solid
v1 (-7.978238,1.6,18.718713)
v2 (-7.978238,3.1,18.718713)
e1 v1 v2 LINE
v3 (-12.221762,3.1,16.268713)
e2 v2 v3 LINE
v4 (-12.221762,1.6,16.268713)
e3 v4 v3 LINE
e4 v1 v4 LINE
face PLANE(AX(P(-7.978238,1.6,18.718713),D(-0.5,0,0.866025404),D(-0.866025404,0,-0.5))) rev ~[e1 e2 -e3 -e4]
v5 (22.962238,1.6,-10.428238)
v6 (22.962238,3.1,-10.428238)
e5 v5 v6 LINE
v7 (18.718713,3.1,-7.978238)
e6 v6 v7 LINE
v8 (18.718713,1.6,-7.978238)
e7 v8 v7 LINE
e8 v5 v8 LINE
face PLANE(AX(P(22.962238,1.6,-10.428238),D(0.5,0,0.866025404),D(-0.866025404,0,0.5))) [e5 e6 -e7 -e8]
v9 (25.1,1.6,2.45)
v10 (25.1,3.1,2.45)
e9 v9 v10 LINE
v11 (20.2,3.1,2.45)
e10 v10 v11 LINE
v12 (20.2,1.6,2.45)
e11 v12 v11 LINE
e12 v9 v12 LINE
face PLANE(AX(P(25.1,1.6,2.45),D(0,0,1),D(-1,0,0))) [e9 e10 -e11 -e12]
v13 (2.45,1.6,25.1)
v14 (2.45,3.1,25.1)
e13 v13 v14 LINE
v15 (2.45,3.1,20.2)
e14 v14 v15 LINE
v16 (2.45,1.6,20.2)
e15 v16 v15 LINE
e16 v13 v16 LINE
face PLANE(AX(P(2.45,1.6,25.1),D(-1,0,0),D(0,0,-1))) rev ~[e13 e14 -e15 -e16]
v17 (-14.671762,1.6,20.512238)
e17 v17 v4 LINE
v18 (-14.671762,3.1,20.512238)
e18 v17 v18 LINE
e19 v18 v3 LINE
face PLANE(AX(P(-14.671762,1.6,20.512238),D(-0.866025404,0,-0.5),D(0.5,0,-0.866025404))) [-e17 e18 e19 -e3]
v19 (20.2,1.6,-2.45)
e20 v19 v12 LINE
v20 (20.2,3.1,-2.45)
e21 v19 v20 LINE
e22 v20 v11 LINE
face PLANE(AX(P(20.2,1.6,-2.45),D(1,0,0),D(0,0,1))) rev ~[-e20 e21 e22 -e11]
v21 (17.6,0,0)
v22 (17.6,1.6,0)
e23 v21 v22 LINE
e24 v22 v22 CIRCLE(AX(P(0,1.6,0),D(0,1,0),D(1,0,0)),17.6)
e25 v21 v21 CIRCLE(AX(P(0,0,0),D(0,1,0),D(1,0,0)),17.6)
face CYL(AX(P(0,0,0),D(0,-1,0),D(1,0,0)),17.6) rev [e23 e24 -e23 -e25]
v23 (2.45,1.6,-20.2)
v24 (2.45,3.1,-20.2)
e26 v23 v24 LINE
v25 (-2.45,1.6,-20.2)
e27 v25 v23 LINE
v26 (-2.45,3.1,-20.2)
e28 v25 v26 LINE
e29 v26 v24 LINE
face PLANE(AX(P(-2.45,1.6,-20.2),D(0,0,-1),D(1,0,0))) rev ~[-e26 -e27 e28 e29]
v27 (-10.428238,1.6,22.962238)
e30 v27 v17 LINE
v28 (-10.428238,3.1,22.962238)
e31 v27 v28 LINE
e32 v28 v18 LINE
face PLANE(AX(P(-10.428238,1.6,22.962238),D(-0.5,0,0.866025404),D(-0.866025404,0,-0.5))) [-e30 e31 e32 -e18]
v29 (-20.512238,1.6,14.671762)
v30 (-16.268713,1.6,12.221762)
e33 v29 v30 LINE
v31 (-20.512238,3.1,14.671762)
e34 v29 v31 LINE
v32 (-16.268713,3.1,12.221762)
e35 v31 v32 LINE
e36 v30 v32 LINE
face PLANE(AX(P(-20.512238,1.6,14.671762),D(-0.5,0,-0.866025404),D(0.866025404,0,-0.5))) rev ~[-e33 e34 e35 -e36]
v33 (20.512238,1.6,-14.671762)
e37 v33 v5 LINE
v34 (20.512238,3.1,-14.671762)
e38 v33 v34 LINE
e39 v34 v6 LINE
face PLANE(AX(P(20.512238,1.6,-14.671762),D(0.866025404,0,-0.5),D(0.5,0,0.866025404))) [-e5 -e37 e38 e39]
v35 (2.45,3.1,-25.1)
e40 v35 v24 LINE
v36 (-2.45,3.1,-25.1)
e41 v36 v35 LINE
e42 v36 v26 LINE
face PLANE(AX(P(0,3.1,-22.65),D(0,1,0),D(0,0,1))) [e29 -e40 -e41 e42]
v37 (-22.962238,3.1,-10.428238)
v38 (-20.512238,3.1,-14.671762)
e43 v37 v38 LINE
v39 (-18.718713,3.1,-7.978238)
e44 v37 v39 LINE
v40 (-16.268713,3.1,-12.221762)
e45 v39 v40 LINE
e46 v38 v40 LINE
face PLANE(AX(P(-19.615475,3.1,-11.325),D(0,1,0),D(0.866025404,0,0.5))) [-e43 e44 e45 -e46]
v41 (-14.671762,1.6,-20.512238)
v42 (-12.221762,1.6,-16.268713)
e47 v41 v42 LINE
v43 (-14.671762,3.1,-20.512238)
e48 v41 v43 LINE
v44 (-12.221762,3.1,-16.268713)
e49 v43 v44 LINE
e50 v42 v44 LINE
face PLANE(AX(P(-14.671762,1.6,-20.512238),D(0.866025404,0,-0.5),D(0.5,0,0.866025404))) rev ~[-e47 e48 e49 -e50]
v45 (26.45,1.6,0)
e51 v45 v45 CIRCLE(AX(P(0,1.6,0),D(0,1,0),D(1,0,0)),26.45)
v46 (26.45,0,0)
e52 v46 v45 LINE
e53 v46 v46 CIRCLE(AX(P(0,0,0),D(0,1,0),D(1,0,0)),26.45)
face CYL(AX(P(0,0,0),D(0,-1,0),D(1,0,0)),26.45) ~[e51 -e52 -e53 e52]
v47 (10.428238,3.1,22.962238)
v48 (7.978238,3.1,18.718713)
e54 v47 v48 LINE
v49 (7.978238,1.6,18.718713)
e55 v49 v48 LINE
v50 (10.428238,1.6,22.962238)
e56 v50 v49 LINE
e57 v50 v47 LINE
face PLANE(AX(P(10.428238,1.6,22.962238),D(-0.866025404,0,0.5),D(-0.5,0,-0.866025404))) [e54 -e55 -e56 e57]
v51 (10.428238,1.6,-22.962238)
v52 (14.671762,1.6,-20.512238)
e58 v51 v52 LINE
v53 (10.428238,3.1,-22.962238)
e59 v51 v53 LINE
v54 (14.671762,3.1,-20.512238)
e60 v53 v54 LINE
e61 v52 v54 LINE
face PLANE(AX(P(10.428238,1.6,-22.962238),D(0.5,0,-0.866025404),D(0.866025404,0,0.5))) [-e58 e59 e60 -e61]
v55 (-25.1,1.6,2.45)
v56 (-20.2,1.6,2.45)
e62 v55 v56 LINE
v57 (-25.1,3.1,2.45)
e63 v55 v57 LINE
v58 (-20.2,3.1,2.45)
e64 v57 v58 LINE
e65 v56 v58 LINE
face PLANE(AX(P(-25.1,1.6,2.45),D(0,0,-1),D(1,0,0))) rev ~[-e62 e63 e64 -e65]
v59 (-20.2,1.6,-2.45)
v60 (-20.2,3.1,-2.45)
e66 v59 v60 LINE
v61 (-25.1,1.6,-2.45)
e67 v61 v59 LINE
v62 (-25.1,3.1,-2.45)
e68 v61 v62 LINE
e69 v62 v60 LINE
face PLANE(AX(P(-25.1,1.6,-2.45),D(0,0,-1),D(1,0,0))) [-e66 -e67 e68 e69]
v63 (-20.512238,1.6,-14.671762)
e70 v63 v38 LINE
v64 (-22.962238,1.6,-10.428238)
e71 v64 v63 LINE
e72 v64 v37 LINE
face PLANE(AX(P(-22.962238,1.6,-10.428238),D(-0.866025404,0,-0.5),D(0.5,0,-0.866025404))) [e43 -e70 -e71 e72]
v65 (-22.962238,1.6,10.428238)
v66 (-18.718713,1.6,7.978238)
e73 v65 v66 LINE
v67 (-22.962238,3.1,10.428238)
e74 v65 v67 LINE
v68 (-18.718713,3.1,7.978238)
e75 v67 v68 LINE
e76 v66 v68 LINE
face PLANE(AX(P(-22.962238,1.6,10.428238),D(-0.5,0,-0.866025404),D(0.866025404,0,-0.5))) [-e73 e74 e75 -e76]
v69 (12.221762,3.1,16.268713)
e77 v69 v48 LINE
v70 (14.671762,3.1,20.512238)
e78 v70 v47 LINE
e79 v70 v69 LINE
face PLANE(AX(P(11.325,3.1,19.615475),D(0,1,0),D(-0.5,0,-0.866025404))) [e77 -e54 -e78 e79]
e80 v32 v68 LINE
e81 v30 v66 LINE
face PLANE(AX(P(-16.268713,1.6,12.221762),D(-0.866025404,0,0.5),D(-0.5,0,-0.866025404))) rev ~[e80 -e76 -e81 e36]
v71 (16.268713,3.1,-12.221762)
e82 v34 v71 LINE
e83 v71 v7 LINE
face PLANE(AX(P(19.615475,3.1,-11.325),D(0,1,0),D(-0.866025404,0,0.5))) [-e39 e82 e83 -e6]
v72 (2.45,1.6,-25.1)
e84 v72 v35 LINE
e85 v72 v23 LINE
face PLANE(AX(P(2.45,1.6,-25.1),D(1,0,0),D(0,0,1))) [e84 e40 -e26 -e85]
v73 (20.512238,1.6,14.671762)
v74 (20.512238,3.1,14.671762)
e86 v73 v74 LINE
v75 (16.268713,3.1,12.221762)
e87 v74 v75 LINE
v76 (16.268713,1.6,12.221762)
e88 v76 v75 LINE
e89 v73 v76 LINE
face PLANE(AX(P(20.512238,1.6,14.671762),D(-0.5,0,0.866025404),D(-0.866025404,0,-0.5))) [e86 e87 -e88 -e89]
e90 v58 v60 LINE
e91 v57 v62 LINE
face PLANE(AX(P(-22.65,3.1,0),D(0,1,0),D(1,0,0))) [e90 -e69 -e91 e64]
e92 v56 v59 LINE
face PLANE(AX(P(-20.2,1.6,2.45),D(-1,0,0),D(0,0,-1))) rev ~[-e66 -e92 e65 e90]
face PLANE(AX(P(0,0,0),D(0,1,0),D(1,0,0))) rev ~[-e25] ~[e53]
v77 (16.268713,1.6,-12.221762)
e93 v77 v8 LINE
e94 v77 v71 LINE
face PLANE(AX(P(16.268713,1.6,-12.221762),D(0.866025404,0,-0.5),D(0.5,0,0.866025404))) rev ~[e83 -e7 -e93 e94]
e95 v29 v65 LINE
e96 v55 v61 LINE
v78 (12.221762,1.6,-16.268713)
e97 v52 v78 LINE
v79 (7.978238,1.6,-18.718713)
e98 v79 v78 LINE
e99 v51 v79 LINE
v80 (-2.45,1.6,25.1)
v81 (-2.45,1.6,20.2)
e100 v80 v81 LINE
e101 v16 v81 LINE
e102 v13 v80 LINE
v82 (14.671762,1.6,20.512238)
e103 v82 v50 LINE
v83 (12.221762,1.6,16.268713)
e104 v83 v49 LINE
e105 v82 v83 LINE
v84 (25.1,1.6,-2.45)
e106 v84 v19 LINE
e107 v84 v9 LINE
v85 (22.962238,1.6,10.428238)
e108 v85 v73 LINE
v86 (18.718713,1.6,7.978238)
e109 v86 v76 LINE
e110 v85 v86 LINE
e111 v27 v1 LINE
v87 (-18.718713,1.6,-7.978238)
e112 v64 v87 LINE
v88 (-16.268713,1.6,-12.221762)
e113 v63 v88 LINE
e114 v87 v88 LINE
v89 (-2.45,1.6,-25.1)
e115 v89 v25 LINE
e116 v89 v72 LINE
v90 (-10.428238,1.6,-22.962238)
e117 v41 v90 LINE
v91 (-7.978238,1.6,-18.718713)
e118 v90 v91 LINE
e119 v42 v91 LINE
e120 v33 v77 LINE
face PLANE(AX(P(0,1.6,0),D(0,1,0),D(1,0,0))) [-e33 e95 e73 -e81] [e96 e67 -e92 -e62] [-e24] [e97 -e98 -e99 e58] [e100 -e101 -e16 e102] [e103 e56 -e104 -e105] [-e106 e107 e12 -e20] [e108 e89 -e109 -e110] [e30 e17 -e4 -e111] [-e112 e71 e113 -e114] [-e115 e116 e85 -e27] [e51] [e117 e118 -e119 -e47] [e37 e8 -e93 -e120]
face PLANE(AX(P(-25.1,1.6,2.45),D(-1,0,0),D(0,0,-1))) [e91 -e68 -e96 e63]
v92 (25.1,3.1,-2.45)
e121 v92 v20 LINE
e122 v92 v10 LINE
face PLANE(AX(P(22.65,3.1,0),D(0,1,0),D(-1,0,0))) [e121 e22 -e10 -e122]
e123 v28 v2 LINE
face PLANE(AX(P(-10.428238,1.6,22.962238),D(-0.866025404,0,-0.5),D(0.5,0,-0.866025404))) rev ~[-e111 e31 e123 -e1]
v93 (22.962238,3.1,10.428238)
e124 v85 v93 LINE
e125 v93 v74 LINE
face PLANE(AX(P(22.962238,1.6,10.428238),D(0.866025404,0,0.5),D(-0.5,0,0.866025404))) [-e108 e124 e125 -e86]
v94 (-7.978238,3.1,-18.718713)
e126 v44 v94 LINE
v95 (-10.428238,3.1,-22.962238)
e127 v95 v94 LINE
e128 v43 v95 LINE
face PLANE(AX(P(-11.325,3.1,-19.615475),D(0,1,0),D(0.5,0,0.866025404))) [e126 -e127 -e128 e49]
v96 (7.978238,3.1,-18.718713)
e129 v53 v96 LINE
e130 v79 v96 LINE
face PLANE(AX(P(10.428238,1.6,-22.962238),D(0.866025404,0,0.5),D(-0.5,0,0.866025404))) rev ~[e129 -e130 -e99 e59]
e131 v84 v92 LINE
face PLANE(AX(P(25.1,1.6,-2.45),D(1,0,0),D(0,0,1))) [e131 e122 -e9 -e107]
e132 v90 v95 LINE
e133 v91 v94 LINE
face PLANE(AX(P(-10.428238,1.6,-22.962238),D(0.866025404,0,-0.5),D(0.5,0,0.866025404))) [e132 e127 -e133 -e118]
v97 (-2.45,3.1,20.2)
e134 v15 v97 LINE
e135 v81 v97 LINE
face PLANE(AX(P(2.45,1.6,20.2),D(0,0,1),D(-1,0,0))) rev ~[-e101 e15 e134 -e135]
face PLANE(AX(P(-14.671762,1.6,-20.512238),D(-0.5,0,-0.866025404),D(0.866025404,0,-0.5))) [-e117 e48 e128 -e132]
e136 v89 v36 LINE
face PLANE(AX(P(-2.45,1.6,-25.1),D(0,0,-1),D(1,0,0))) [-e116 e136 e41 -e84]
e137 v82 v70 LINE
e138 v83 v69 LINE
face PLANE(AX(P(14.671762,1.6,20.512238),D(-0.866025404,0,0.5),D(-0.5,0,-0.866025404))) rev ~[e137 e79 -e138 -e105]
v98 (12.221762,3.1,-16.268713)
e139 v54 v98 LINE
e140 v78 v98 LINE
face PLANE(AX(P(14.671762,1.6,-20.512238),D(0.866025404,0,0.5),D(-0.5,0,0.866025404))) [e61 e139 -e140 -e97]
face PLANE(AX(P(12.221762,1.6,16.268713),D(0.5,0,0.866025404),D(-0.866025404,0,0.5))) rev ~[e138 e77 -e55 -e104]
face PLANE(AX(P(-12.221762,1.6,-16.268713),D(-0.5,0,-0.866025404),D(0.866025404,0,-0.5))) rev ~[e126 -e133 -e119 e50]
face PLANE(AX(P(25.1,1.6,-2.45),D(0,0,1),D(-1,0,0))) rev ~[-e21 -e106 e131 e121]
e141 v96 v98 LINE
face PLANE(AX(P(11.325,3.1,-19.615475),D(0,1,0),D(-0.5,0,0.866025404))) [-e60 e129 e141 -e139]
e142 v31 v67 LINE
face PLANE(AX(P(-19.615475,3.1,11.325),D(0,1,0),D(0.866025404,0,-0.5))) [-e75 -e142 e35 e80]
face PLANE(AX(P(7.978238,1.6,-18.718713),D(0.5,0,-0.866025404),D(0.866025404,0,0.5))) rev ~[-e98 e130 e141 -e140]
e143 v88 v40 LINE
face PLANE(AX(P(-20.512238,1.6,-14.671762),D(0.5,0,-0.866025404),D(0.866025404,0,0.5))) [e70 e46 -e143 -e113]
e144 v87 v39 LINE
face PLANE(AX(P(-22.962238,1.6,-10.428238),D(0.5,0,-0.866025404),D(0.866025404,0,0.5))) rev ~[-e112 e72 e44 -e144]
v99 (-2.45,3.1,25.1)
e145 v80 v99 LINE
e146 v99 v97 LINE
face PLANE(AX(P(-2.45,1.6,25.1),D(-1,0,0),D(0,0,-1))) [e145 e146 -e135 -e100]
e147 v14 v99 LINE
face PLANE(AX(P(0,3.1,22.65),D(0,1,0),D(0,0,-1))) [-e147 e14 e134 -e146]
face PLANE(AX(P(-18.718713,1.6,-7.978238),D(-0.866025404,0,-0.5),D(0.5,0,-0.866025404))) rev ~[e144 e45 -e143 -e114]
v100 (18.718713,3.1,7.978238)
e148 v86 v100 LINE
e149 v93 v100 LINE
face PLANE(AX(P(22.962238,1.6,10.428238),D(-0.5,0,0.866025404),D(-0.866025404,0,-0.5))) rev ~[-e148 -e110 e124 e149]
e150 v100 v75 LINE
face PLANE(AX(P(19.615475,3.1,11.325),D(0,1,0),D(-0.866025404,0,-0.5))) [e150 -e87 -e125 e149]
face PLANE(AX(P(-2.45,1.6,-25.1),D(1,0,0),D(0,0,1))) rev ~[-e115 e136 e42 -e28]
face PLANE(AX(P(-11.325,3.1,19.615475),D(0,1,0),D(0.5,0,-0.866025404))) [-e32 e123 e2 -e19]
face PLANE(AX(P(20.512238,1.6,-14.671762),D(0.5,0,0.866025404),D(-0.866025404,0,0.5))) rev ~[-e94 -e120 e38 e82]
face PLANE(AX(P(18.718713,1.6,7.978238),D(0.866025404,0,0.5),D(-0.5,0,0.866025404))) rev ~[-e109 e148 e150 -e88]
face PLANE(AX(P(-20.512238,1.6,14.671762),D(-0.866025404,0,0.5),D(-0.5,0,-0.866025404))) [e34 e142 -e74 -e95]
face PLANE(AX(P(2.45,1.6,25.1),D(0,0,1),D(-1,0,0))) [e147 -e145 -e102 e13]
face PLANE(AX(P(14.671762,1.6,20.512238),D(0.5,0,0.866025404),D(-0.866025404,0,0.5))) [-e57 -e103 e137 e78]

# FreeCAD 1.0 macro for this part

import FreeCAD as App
import Part
import Sketcher
from FreeCAD import Vector


def add_polygon(sketch, points):
    """Adds a closed chain of lines whose ends are joined by coincident constraints."""
    first, n = sketch.GeometryCount, len(points)
    for a, b in zip(points, points[1:] + points[:1]):
        sketch.addGeometry(Part.LineSegment(App.Vector(*a, 0), App.Vector(*b, 0)), False)
    for i in range(n):
        sketch.addConstraint(Sketcher.Constraint("Coincident", first + i, 2, first + (i + 1) % n, 1))

doc = App.newDocument("Part")
params = doc.addObject("Spreadsheet::Sheet", "Params")
for row, (alias, value) in enumerate([
    ("sketch1_diameter", "52.9 mm"),
    ("sketch1_diameter2", "35.2 mm"),
    ("pad1_length", "1.6 mm"),
    ("sketch2_width", "4.9 mm"),
    ("pad2_length", "1.5 mm"),
], start=1):
    params.set(f"A{row}", alias)
    params.set(f"B{row}", "=" + value)
    params.setAlias(f"B{row}", alias)

body = doc.addObject("PartDesign::Body", "Body")

sketch1 = body.newObject("Sketcher::SketchObject", "Sketch")
sketch1.AttachmentSupport = (doc.getObject("XZ_Plane"), [""])
sketch1.MapMode = "FlatFace"
sketch1.addGeometry(Part.Circle(Vector(0, 0, 0), Vector(0, 0, 1), 26.45), False)
sketch1.addGeometry(Part.Circle(Vector(0, 0, 0), Vector(0, 0, 1), 17.6), False)
sketch1.addConstraint(Sketcher.Constraint("Coincident", 0, 3, -1, 1))
sketch1.addConstraint(Sketcher.Constraint("Coincident", 1, 3, -1, 1))
sketch1.addConstraint(Sketcher.Constraint("Diameter", 0, 52.9))
sketch1.addConstraint(Sketcher.Constraint("Diameter", 1, 35.2))
sketch1.setExpression("Constraints[2]", "Params.sketch1_diameter")
sketch1.setExpression("Constraints[3]", "Params.sketch1_diameter2")
pad1 = body.newObject("PartDesign::Pad", "Pad")
pad1.Profile = sketch1
pad1.setExpression("Length", "Params.pad1_length")
pad1.Reversed = True

sketch2 = body.newObject("Sketcher::SketchObject", "Sketch001")
sketch2.AttachmentSupport = (doc.getObject("XZ_Plane"), [""])
sketch2.MapMode = "FlatFace"
sketch2.AttachmentOffset = App.Placement(Vector(0, 0, -1.6), App.Rotation())
add_polygon(sketch2, [(-25.1, -2.45), (-25.1, 2.45), (-20.2, 2.45), (-20.2, -2.45)])
sketch2.addConstraint(Sketcher.Constraint("Vertical", 0))
sketch2.addConstraint(Sketcher.Constraint("Horizontal", 1))
sketch2.addConstraint(Sketcher.Constraint("Vertical", 2))
sketch2.addConstraint(Sketcher.Constraint("Horizontal", 3))
sketch2.addConstraint(Sketcher.Constraint("Equal", 3, 0))
sketch2.addConstraint(Sketcher.Constraint("DistanceX", 1, 1, 1, 2, 4.9))
sketch2.addConstraint(Sketcher.Constraint("DistanceX", 0, 2, -1, 1, 25.1))
sketch2.addConstraint(Sketcher.Constraint("DistanceY", -1, 1, 0, 2, 2.45))
sketch2.setExpression("Constraints[9]", "Params.sketch2_width")
pad2 = body.newObject("PartDesign::Pad", "Pad001")
pad2.Profile = sketch2
pad2.setExpression("Length", "Params.pad2_length")
pad2.Reversed = True
doc.recompute()

polarpattern = body.newObject("PartDesign::PolarPattern", "PolarPattern")
polarpattern.Originals = [pad2]
polarpattern.Axis = (doc.getObject("Y_Axis"), [""])
polarpattern.Angle = 360
polarpattern.Occurrences = 12
body.Tip = polarpattern

doc.recompute()
